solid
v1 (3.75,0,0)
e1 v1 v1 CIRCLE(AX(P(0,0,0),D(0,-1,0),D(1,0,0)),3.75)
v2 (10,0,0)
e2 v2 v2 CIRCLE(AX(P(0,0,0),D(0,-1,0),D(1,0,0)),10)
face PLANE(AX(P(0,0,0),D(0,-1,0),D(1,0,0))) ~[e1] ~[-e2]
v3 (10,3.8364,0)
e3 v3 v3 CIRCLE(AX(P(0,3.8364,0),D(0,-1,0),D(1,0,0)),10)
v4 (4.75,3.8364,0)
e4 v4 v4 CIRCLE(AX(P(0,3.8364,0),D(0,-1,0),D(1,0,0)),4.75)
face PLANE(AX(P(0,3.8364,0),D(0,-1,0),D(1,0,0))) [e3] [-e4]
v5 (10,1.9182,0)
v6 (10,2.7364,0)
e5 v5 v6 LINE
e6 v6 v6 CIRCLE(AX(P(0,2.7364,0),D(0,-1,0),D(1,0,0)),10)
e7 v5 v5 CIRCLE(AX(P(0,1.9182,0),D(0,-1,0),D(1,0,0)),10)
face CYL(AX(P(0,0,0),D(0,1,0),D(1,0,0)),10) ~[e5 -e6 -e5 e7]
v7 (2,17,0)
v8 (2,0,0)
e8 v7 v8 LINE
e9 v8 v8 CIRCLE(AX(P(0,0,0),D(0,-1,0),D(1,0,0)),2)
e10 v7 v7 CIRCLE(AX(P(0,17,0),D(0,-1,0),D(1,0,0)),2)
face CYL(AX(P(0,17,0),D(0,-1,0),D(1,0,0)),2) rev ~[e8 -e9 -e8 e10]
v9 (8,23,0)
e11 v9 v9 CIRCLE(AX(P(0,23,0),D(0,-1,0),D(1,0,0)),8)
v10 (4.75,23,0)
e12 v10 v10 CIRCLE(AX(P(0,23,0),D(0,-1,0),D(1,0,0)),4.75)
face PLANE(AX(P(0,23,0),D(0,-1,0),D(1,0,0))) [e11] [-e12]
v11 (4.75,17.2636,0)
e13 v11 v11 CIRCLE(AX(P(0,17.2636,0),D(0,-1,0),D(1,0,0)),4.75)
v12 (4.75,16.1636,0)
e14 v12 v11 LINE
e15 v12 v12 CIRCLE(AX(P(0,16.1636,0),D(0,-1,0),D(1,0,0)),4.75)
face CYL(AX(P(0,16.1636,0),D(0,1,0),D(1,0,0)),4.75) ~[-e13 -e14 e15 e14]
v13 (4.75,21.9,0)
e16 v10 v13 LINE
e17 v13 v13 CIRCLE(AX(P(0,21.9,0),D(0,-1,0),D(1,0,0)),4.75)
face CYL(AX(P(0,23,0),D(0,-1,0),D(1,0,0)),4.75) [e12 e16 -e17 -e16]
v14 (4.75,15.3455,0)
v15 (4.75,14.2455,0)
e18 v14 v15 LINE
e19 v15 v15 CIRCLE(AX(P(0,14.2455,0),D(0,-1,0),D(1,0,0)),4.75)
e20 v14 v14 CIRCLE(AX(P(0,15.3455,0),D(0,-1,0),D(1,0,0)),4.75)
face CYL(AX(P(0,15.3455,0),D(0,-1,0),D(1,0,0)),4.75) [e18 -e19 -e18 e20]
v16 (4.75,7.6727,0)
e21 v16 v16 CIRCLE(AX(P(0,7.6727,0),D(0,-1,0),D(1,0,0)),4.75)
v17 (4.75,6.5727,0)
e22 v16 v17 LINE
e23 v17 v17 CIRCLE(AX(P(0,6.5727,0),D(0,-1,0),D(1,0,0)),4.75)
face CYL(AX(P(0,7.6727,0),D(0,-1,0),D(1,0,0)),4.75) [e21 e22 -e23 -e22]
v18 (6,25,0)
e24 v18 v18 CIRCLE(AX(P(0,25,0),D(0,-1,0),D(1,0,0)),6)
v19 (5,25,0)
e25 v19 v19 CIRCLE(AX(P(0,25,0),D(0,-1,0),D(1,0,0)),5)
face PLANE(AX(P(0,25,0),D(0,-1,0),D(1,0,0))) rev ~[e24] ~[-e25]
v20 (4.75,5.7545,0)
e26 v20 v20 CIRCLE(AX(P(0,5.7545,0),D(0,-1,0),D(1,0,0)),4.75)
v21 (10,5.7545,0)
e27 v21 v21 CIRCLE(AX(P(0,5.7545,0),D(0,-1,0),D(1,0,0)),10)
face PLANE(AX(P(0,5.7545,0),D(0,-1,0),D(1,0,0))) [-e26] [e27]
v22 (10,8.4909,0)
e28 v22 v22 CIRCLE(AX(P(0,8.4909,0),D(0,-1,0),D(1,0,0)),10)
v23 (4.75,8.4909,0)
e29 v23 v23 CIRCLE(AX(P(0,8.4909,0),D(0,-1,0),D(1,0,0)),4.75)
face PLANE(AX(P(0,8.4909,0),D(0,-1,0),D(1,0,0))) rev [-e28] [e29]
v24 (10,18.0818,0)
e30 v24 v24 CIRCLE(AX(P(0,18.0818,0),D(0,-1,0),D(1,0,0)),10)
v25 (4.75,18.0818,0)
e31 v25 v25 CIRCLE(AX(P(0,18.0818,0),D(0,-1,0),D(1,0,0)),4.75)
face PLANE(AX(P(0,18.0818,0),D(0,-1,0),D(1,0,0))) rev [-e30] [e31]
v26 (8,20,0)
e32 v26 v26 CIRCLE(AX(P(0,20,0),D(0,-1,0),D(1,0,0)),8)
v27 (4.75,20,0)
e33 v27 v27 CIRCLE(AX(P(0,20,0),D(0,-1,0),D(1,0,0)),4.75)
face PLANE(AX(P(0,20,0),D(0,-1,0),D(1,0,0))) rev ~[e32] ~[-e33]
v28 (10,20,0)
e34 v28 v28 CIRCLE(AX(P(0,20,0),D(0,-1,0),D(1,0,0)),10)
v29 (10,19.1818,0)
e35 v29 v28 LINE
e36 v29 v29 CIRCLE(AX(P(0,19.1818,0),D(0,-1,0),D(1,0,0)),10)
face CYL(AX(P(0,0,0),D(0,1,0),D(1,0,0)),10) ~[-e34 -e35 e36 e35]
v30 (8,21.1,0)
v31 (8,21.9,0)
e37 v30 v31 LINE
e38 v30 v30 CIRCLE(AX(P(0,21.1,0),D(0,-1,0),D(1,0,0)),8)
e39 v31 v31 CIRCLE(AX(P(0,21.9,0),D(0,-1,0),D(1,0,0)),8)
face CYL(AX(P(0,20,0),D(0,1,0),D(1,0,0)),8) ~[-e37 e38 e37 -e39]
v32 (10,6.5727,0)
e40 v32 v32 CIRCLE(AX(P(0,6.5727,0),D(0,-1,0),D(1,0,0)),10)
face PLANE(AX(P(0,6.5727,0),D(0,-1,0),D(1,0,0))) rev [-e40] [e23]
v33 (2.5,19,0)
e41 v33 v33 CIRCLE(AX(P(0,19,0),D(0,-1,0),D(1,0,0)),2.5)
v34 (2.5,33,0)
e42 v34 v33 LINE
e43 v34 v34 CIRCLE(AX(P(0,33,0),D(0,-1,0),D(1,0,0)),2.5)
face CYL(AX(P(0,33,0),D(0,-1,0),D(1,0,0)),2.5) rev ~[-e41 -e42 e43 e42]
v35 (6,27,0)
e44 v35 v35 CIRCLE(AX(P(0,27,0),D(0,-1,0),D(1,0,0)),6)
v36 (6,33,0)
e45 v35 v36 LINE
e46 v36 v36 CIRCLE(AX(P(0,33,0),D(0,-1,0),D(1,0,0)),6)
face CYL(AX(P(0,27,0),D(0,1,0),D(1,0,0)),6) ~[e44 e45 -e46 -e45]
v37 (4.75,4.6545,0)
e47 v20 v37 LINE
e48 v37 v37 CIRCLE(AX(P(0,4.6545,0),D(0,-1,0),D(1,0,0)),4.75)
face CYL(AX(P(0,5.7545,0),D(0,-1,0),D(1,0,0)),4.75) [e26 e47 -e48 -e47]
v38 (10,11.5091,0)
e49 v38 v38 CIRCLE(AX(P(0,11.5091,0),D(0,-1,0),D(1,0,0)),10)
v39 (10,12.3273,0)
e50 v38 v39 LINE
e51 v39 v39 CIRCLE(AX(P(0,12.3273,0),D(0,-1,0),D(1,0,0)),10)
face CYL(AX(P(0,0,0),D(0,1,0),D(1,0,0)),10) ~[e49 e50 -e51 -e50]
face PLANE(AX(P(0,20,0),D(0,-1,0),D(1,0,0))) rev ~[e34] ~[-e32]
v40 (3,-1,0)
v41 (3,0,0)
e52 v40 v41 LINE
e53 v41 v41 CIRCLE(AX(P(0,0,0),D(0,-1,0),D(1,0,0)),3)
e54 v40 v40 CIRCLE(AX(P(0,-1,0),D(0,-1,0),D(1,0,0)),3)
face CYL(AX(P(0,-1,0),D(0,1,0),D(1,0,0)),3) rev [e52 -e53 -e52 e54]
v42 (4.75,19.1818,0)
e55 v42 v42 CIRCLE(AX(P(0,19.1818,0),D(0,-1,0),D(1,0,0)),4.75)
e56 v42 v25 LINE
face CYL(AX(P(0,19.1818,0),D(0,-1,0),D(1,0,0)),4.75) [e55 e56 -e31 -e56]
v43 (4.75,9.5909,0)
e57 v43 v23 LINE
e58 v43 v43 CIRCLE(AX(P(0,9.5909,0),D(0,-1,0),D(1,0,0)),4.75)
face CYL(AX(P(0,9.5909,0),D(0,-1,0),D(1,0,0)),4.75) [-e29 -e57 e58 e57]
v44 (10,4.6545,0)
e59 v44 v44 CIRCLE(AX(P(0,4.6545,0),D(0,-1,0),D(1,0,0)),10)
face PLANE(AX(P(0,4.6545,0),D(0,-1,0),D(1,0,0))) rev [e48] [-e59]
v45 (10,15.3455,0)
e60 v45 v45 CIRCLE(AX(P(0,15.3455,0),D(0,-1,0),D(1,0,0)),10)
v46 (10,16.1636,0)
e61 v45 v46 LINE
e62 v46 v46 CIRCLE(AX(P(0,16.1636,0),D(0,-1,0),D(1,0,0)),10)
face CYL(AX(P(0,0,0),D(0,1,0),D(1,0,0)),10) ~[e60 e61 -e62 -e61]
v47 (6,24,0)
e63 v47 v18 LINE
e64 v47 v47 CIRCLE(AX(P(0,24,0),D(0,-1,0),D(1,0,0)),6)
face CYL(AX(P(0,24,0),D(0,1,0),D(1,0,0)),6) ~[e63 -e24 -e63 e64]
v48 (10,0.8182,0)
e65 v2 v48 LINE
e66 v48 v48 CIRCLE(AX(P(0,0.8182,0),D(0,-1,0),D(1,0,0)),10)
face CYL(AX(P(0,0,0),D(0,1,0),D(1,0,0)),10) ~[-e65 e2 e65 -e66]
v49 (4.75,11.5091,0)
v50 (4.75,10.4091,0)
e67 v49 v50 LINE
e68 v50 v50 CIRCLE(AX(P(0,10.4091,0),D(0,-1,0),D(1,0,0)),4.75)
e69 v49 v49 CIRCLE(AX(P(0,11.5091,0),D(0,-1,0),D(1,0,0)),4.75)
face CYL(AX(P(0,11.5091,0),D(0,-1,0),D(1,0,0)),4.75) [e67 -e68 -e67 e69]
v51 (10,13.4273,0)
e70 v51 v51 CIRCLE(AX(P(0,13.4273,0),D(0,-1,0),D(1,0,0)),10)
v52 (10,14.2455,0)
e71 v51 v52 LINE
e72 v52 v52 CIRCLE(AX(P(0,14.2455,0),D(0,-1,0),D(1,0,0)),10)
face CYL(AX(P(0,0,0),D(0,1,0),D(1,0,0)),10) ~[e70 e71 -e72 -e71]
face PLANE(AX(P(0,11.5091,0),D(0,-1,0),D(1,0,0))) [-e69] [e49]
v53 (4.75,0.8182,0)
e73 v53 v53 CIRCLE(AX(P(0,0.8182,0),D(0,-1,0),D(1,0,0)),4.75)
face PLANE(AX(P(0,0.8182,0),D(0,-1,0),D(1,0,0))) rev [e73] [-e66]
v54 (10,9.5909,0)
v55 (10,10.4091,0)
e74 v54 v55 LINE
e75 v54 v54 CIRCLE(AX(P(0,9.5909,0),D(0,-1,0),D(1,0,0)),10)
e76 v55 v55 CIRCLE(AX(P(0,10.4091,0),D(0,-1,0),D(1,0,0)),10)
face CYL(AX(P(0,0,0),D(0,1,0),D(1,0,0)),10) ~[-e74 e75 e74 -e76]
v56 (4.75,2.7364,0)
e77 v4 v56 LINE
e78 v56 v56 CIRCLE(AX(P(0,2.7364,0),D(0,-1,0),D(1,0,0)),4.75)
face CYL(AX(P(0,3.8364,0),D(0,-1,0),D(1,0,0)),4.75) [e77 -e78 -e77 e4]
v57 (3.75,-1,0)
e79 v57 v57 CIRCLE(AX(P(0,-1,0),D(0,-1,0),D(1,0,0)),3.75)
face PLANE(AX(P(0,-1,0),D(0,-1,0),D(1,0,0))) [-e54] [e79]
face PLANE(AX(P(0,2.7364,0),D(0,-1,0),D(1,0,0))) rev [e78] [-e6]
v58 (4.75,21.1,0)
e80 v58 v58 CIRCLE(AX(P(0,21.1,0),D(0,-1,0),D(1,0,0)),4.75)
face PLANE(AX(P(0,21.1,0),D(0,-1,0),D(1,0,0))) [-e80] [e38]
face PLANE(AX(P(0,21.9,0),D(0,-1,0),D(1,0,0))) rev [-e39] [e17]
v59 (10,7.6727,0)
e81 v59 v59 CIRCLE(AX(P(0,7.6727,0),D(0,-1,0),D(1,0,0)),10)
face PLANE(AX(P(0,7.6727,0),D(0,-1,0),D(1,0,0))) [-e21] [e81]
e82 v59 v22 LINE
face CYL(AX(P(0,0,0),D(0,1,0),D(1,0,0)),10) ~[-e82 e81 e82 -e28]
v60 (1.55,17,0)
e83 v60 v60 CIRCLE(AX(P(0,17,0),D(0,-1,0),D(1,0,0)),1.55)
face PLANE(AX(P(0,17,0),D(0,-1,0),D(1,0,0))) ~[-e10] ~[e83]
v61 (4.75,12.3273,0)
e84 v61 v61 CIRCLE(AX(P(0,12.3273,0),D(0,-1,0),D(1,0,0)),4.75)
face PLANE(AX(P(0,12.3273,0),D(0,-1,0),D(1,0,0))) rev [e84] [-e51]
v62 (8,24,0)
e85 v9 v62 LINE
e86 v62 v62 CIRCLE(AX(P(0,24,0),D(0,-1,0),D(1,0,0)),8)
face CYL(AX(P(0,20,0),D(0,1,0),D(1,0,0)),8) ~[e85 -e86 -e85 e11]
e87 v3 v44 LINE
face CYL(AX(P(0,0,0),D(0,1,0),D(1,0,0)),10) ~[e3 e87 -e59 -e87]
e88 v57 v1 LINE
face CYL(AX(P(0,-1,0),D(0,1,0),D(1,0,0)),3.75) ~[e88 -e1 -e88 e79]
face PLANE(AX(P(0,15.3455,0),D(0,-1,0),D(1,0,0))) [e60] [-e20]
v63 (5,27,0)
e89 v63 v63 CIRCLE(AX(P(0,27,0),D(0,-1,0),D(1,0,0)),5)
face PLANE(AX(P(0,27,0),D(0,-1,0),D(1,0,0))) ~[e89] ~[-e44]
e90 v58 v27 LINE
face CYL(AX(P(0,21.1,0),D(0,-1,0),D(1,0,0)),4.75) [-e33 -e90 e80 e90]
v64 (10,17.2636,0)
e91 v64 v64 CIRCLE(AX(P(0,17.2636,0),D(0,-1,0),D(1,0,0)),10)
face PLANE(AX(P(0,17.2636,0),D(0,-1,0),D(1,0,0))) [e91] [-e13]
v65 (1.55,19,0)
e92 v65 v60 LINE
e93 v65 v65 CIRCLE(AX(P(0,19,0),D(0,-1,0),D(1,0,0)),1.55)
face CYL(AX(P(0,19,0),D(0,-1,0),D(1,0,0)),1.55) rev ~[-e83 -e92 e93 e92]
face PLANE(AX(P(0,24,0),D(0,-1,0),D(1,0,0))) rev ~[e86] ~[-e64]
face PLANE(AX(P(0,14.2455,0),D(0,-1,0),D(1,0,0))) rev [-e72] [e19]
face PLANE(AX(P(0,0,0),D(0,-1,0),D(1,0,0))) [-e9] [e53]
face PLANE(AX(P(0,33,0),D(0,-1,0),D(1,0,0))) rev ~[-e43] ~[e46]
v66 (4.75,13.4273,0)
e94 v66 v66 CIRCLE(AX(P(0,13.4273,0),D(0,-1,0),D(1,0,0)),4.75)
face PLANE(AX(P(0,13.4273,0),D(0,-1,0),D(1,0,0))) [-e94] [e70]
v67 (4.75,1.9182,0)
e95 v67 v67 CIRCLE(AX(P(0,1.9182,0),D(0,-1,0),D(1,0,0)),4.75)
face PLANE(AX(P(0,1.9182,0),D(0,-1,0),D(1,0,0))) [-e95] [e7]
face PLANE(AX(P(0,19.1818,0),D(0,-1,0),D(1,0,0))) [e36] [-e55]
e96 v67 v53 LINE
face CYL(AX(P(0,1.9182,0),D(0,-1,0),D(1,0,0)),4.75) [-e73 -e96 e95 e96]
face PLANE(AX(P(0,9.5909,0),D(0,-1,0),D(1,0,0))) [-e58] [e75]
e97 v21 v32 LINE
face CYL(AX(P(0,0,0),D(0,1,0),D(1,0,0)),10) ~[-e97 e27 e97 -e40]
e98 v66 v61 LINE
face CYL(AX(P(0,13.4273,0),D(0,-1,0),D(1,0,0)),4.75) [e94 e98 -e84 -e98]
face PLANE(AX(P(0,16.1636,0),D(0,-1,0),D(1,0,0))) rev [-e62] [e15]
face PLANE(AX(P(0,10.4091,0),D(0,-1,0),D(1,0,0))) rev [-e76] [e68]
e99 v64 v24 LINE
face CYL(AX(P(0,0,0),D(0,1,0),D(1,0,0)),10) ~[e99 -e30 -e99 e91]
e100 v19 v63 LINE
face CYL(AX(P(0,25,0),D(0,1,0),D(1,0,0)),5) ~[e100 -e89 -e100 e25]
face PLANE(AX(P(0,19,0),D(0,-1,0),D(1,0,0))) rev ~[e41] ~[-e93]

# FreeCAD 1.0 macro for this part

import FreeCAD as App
import Part
import Sketcher


def add_polygon(sketch, points):
    """Adds a closed chain of lines whose ends are joined by coincident constraints."""
    first, n = sketch.GeometryCount, len(points)
    for a, b in zip(points, points[1:] + points[:1]):
        sketch.addGeometry(Part.LineSegment(App.Vector(*a, 0), App.Vector(*b, 0)), False)
    for i in range(n):
        sketch.addConstraint(Sketcher.Constraint("Coincident", first + i, 2, first + (i + 1) % n, 1))

doc = App.newDocument("Part")
body = doc.addObject("PartDesign::Body", "Body")

sketch1 = body.newObject("Sketcher::SketchObject", "Sketch")
sketch1.AttachmentSupport = (doc.getObject("XY_Plane"), [""])
sketch1.MapMode = "FlatFace"
add_polygon(sketch1, [(3, -1), (3.75, -1), (3.75, 0), (10, 0), (10, 0.82), (4.75, 0.82), (4.75, 1.92), (10, 1.92), (10, 2.74), (4.75, 2.74), (4.75, 3.84), (10, 3.84), (10, 4.65), (4.75, 4.65), (4.75, 5.75), (10, 5.75), (10, 6.57), (4.75, 6.57), (4.75, 7.67), (10, 7.67), (10, 8.49), (4.75, 8.49), (4.75, 9.59), (10, 9.59), (10, 10.41), (4.75, 10.41), (4.75, 11.51), (10, 11.51), (10, 12.33), (4.75, 12.33), (4.75, 13.43), (10, 13.43), (10, 14.25), (4.75, 14.25), (4.75, 15.35), (10, 15.35), (10, 16.16), (4.75, 16.16), (4.75, 17.26), (10, 17.26), (10, 18.08), (4.75, 18.08), (4.75, 19.18), (10, 19.18), (10, 20), (4.75, 20), (4.75, 21.1), (8, 21.1), (8, 21.9), (4.75, 21.9), (4.75, 23), (8, 23), (8, 24), (6, 24), (6, 25), (5, 25), (5, 27), (6, 27), (6, 33), (2.5, 33), (2.5, 19), (1.55, 19), (1.55, 17), (2, 17), (2, 0), (3, 0)])
sketch1.addConstraint([
    Sketcher.Constraint("Horizontal", 0),
    Sketcher.Constraint("Vertical", 1),
    Sketcher.Constraint("Horizontal", 2),
    Sketcher.Constraint("Vertical", 3),
    Sketcher.Constraint("Horizontal", 4),
    Sketcher.Constraint("Vertical", 5),
    Sketcher.Constraint("Horizontal", 6),
    Sketcher.Constraint("Vertical", 7),
    Sketcher.Constraint("Horizontal", 8),
    Sketcher.Constraint("Vertical", 9),
    Sketcher.Constraint("Horizontal", 10),
    Sketcher.Constraint("Vertical", 11),
    Sketcher.Constraint("Horizontal", 12),
    Sketcher.Constraint("Vertical", 13),
    Sketcher.Constraint("Horizontal", 14),
    Sketcher.Constraint("Vertical", 15),
    Sketcher.Constraint("Horizontal", 16),
    Sketcher.Constraint("Vertical", 17),
    Sketcher.Constraint("Horizontal", 18),
    Sketcher.Constraint("Vertical", 19),
    Sketcher.Constraint("Horizontal", 20),
    Sketcher.Constraint("Vertical", 21),
    Sketcher.Constraint("Horizontal", 22),
    Sketcher.Constraint("Vertical", 23),
    Sketcher.Constraint("Horizontal", 24),
    Sketcher.Constraint("Vertical", 25),
    Sketcher.Constraint("Horizontal", 26),
    Sketcher.Constraint("Vertical", 27),
    Sketcher.Constraint("Horizontal", 28),
    Sketcher.Constraint("Vertical", 29),
    Sketcher.Constraint("Horizontal", 30),
    Sketcher.Constraint("Vertical", 31),
    Sketcher.Constraint("Horizontal", 32),
    Sketcher.Constraint("Vertical", 33),
    Sketcher.Constraint("Horizontal", 34),
    Sketcher.Constraint("Vertical", 35),
    Sketcher.Constraint("Horizontal", 36),
    Sketcher.Constraint("Vertical", 37),
    Sketcher.Constraint("Horizontal", 38),
    Sketcher.Constraint("Vertical", 39),
    Sketcher.Constraint("Horizontal", 40),
    Sketcher.Constraint("Vertical", 41),
    Sketcher.Constraint("Horizontal", 42),
    Sketcher.Constraint("Vertical", 43),
    Sketcher.Constraint("Horizontal", 44),
    Sketcher.Constraint("Vertical", 45),
    Sketcher.Constraint("Horizontal", 46),
    Sketcher.Constraint("Vertical", 47),
    Sketcher.Constraint("Horizontal", 48),
    Sketcher.Constraint("Vertical", 49),
    Sketcher.Constraint("Horizontal", 50),
    Sketcher.Constraint("Vertical", 51),
    Sketcher.Constraint("Horizontal", 52),
    Sketcher.Constraint("Vertical", 53),
    Sketcher.Constraint("Horizontal", 54),
    Sketcher.Constraint("Vertical", 55),
    Sketcher.Constraint("Horizontal", 56),
    Sketcher.Constraint("Vertical", 57),
    Sketcher.Constraint("Horizontal", 58),
    Sketcher.Constraint("Vertical", 59),
    Sketcher.Constraint("Horizontal", 60),
    Sketcher.Constraint("Vertical", 61),
    Sketcher.Constraint("Horizontal", 62),
    Sketcher.Constraint("Vertical", 63),
    Sketcher.Constraint("Horizontal", 64),
    Sketcher.Constraint("Vertical", 65),
    Sketcher.Constraint("PointOnObject", 1, 2, -1),
    Sketcher.Constraint("PointOnObject", 63, 2, -1),
    Sketcher.Constraint("Vertical", 3, 2, 6, 2),
    Sketcher.Constraint("Vertical", 5, 2, 8, 2),
    Sketcher.Constraint("Vertical", 7, 2, 10, 2),
    Sketcher.Constraint("Vertical", 9, 2, 12, 2),
    Sketcher.Constraint("Vertical", 11, 2, 14, 2),
    Sketcher.Constraint("Vertical", 13, 2, 16, 2),
    Sketcher.Constraint("Vertical", 15, 2, 18, 2),
    Sketcher.Constraint("Vertical", 17, 2, 20, 2),
    Sketcher.Constraint("Vertical", 19, 2, 22, 2),
    Sketcher.Constraint("Vertical", 21, 2, 24, 2),
    Sketcher.Constraint("Vertical", 23, 2, 26, 2),
    Sketcher.Constraint("Vertical", 25, 2, 28, 2),
    Sketcher.Constraint("Vertical", 27, 2, 30, 2),
    Sketcher.Constraint("Vertical", 29, 2, 32, 2),
    Sketcher.Constraint("Vertical", 31, 2, 34, 2),
    Sketcher.Constraint("Vertical", 33, 2, 36, 2),
    Sketcher.Constraint("Vertical", 35, 2, 38, 2),
    Sketcher.Constraint("Vertical", 37, 2, 40, 2),
    Sketcher.Constraint("Vertical", 39, 2, 42, 2),
    Sketcher.Constraint("Vertical", 41, 2, 44, 2),
    Sketcher.Constraint("Vertical", 45, 2, 48, 2),
    Sketcher.Constraint("Vertical", 47, 2, 50, 2),
    Sketcher.Constraint("Vertical", 53, 2, 56, 2),
    Sketcher.Constraint("Equal", 56, 64),
    Sketcher.Constraint("Equal", 64, 1),
    Sketcher.Constraint("Equal", 3, 7),
    Sketcher.Constraint("Equal", 5, 9),
    Sketcher.Constraint("Equal", 7, 11),
    Sketcher.Constraint("Equal", 9, 13),
    Sketcher.Constraint("Equal", 11, 15),
    Sketcher.Constraint("Equal", 13, 17),
    Sketcher.Constraint("Equal", 15, 19),
    Sketcher.Constraint("Equal", 17, 21),
    Sketcher.Constraint("Equal", 19, 23),
    Sketcher.Constraint("Equal", 21, 25),
    Sketcher.Constraint("Equal", 23, 27),
    Sketcher.Constraint("Equal", 25, 29),
    Sketcher.Constraint("Equal", 27, 31),
    Sketcher.Constraint("Equal", 29, 33),
    Sketcher.Constraint("Equal", 31, 35),
    Sketcher.Constraint("Equal", 33, 37),
    Sketcher.Constraint("Equal", 35, 39),
    Sketcher.Constraint("Equal", 37, 41),
    Sketcher.Constraint("Equal", 39, 43),
    Sketcher.Constraint("Equal", 41, 45),
    Sketcher.Constraint("Equal", 45, 49),
    Sketcher.Constraint("Equal", 1, 51),
    Sketcher.Constraint("Equal", 51, 53),
    Sketcher.Constraint("Equal", 52, 55),
    Sketcher.Constraint("Equal", 55, 61),
    Sketcher.Constraint("DistanceX", 54, 2, 54, 1, 1.0),
    Sketcher.Constraint("DistanceY", 57, 1, 57, 2, 6.0),
    Sketcher.Constraint("DistanceY", 59, 2, 59, 1, 14.0),
    Sketcher.Constraint("DistanceY", 63, 2, 63, 1, 17.0),
    Sketcher.Constraint("DistanceY", 5, 1, 5, 2, 1.1),
    Sketcher.Constraint("DistanceY", 47, 1, 47, 2, 0.8),
    Sketcher.Constraint("DistanceX", -1, 1, 2, 2, 10.0),
    Sketcher.Constraint("DistanceX", -1, 1, 46, 2, 8.0),
    Sketcher.Constraint("DistanceX", -1, 1, 52, 2, 6.0),
    Sketcher.Constraint("DistanceX", 58, 2, 58, 1, 3.5),
    Sketcher.Constraint("DistanceX", -1, 1, 62, 2, 2.0),
    Sketcher.Constraint("DistanceX", 0, 1, 0, 2, 0.75),
    Sketcher.Constraint("DistanceX", 4, 2, 4, 1, 5.25),
    Sketcher.Constraint("DistanceX", 60, 2, 60, 1, 0.95),
])
revolution = body.newObject("PartDesign::Revolution", "Revolution")
revolution.Profile = sketch1
revolution.ReferenceAxis = (sketch1, ["V_Axis"])
revolution.Angle = 360

doc.recompute()
